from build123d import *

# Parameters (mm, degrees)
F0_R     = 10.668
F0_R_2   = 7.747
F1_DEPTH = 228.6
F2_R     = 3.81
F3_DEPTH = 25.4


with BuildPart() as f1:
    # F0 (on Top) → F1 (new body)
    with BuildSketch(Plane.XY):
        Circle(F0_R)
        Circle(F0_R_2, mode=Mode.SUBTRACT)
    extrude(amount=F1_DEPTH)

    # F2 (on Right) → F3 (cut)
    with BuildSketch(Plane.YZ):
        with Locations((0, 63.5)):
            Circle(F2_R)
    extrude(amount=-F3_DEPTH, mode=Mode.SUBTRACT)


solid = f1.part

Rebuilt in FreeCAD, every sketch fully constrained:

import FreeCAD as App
import Part
import Sketcher
from FreeCAD import Vector
Q = App.Units.Quantity

doc = App.newDocument("Part")
body = doc.addObject("PartDesign::Body", "Body")

# Sketch on XY plane
sketch1 = body.newObject("Sketcher::SketchObject", "Sketch")
sketch1.AttachmentSupport = (doc.getObject("XY_Plane"), [""])
sketch1.MapMode = "FlatFace"
sketch1.addGeometry(Part.Circle(Vector(0, 0, 0), Vector(0, 0, 1), 11), False)
sketch1.addGeometry(Part.Circle(Vector(0, 0, 0), Vector(0, 0, 1), 8), False)
sketch1.addConstraint(Sketcher.Constraint("Coincident", 0, 3, -1, 1))
sketch1.addConstraint(Sketcher.Constraint("Coincident", 1, 3, -1, 1))
sketch1.addConstraint(Sketcher.Constraint("Diameter", 0, Q("0.84 in")))
sketch1.addConstraint(Sketcher.Constraint("Diameter", 1, Q("0.61 in")))
pad1 = body.newObject("PartDesign::Pad", "Pad")
pad1.Profile = sketch1
pad1.Length = Q("9 in")

# Sketch on YZ plane
sketch2 = body.newObject("Sketcher::SketchObject", "Sketch001")
sketch2.AttachmentSupport = (doc.getObject("YZ_Plane"), [""])
sketch2.MapMode = "FlatFace"
sketch2.addGeometry(Part.Circle(Vector(0, 63.5, 0), Vector(0, 0, 1), 3.8), False)
sketch2.addConstraint(Sketcher.Constraint("PointOnObject", 0, 3, -2))
sketch2.addConstraint(Sketcher.Constraint("Diameter", 0, Q("0.3 in")))
sketch2.addConstraint(Sketcher.Constraint("DistanceY", -1, 1, 0, 3, Q("2.5 in")))
pocket1 = body.newObject("PartDesign::Pocket", "Pocket")
pocket1.Profile = sketch2
pocket1.Length = Q("1 in")

doc.recompute()
